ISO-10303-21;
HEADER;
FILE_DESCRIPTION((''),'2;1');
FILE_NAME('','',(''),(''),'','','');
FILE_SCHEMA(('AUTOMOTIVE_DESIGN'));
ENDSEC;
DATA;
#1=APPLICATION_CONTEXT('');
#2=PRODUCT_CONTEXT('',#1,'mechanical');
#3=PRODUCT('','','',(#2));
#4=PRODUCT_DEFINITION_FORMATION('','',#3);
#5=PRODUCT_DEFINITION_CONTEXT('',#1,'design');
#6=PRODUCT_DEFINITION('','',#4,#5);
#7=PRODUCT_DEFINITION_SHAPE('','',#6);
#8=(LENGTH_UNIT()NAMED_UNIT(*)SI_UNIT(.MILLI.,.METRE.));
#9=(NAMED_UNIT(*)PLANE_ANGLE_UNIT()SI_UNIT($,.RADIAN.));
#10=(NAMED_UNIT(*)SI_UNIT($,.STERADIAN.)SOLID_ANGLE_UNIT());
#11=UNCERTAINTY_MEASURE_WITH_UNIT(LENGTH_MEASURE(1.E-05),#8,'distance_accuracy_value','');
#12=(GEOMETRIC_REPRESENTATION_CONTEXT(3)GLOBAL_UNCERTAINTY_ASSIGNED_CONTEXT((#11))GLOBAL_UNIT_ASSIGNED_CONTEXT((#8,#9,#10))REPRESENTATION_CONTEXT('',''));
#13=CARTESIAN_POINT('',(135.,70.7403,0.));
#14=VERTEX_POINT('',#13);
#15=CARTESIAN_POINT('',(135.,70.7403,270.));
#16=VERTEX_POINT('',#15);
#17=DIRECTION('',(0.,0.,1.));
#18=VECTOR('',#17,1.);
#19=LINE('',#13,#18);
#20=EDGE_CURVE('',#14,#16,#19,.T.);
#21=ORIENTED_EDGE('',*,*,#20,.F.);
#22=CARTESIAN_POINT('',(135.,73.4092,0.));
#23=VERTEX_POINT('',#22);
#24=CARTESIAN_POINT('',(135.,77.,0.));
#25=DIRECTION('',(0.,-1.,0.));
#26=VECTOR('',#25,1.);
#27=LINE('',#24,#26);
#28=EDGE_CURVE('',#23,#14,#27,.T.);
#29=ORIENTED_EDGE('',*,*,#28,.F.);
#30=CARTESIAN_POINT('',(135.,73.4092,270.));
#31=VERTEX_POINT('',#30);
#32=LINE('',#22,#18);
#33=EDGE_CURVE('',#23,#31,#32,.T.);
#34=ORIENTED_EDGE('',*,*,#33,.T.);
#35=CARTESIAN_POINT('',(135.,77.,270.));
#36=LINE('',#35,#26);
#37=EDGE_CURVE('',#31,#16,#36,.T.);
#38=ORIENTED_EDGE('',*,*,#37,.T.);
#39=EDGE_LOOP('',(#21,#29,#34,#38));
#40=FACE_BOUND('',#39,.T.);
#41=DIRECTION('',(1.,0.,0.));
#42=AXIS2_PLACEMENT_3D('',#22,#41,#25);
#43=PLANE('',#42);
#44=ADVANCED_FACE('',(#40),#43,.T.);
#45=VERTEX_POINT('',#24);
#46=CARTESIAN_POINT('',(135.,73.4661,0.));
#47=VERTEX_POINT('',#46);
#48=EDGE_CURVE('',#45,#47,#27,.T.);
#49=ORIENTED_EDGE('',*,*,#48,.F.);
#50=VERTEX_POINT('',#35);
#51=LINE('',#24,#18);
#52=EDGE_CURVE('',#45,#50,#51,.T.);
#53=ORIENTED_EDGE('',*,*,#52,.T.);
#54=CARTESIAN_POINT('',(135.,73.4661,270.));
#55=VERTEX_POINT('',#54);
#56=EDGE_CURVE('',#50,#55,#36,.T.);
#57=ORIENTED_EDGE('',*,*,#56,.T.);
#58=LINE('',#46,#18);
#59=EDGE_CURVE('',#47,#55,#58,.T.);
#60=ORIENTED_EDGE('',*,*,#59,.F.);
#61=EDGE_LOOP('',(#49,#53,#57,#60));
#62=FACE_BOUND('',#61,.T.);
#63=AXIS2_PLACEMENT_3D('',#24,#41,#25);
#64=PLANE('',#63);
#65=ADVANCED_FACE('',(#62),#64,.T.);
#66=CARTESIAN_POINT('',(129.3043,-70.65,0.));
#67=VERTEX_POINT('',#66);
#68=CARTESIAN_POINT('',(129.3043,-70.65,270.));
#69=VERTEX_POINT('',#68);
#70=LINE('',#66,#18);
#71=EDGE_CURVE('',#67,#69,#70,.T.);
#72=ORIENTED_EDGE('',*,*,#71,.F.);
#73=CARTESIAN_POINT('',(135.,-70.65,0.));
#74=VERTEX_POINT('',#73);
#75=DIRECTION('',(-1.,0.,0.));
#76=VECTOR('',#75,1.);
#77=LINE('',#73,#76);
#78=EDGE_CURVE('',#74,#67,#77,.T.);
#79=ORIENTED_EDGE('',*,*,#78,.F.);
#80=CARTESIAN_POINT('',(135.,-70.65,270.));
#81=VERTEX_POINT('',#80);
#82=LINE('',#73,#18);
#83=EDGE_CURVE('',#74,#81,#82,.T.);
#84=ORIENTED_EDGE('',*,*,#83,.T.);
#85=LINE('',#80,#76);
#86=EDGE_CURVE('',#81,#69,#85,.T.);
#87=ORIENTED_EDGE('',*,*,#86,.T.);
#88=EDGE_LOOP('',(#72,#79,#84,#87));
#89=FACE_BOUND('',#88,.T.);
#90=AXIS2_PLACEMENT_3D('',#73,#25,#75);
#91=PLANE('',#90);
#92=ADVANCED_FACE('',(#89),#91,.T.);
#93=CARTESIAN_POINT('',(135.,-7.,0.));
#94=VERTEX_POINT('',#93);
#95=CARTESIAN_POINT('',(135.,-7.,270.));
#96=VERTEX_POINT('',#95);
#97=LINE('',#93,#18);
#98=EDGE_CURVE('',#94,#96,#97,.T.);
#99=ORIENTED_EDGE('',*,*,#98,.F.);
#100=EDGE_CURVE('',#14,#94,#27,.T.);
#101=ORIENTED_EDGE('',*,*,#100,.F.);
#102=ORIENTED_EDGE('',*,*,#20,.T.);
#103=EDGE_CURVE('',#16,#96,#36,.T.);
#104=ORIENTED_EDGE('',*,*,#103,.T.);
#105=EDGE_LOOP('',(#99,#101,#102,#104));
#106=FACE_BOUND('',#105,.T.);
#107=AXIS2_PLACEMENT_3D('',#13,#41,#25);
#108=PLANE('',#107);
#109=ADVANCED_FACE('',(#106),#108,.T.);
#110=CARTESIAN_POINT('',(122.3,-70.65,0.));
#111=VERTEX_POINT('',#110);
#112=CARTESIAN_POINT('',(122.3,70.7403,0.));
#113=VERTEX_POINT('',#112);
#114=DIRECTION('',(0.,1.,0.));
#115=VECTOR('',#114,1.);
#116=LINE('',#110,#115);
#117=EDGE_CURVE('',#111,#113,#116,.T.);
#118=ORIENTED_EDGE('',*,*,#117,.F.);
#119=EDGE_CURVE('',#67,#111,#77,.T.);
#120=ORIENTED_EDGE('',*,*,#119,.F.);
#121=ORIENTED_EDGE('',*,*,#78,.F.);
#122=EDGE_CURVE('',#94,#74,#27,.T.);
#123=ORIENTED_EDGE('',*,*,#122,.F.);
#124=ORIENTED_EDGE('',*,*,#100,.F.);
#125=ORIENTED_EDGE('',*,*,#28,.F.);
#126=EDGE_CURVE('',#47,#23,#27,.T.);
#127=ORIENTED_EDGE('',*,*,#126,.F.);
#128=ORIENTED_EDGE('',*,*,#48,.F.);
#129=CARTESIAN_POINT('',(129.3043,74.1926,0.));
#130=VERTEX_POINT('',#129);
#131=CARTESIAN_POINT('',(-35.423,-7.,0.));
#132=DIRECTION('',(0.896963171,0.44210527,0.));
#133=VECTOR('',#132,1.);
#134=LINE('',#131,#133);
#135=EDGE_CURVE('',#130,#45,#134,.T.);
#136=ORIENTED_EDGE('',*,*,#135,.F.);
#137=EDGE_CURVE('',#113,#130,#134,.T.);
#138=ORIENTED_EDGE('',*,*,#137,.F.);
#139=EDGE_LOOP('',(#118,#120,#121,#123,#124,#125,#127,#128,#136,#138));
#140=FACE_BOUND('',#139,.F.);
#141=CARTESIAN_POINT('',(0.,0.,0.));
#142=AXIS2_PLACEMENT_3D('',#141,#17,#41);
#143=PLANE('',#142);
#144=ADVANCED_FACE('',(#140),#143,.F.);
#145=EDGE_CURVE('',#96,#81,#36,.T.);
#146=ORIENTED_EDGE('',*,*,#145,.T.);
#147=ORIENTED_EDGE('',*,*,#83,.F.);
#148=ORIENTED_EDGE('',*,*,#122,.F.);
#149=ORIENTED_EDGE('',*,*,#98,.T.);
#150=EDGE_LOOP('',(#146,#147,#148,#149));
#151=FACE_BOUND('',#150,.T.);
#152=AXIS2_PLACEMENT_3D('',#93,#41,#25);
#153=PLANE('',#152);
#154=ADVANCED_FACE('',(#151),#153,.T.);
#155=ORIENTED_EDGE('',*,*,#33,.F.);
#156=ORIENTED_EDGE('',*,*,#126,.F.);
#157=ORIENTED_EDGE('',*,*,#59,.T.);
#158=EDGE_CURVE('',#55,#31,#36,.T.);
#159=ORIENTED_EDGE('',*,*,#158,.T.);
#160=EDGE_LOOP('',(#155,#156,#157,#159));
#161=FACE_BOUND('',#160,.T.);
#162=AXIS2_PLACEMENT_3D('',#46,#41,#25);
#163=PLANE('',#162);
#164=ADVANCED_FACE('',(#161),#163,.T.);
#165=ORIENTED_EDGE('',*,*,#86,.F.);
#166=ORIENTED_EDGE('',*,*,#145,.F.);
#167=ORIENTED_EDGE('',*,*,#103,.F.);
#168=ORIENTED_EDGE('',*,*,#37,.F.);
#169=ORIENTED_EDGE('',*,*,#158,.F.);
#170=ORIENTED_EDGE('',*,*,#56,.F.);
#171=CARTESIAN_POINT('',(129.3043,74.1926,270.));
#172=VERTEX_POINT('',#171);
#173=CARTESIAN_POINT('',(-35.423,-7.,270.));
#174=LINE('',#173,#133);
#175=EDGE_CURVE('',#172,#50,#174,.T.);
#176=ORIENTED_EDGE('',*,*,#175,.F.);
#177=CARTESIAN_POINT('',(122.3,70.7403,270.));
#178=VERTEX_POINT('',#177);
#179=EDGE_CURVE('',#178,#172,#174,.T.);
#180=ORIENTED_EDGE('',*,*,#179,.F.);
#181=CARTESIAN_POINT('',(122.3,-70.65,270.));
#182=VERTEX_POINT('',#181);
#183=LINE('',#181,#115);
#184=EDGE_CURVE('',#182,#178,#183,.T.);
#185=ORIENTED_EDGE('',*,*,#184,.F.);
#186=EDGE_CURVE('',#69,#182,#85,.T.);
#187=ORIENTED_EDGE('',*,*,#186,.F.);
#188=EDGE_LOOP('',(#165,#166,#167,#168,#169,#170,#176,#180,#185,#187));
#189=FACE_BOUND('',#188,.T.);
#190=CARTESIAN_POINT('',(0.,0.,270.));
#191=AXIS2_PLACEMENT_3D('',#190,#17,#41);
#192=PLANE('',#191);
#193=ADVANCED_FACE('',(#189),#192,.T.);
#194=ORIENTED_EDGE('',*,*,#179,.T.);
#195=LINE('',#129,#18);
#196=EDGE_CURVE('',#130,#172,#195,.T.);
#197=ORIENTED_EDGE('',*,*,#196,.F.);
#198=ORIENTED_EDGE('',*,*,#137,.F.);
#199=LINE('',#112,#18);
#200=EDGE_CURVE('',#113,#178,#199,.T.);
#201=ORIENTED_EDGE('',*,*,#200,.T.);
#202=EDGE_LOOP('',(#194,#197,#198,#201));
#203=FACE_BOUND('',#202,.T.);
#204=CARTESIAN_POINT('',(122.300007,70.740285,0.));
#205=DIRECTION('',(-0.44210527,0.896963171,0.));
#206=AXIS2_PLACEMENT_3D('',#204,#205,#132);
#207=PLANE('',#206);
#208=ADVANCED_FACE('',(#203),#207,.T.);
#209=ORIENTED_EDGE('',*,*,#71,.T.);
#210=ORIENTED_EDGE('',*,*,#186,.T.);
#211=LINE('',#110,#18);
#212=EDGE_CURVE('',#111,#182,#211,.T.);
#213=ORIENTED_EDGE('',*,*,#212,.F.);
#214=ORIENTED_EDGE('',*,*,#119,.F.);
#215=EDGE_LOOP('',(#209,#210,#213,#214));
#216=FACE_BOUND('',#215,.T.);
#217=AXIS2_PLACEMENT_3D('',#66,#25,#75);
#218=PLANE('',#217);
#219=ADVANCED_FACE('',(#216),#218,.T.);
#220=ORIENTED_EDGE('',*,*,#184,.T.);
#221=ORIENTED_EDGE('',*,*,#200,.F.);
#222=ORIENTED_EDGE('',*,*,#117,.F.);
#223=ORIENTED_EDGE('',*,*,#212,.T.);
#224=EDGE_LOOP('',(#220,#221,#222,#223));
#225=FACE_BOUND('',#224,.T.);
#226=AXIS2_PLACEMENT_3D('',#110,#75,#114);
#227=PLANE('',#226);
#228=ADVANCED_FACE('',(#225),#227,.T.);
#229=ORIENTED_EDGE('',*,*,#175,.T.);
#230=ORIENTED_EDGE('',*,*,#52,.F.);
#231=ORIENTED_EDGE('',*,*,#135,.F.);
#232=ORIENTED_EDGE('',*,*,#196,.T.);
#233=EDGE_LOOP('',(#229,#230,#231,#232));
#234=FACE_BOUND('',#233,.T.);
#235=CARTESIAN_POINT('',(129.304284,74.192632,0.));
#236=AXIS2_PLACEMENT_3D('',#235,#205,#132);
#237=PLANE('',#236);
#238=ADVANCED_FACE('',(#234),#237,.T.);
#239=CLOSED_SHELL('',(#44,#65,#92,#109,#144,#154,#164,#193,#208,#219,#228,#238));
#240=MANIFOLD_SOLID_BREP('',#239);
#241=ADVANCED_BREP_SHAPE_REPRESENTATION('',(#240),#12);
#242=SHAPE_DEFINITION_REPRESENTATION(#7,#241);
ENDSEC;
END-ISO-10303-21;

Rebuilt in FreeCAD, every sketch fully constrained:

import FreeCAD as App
import Part
import Sketcher
Q = App.Units.Quantity

doc = App.newDocument("Part")
params = doc.addObject("Spreadsheet::Sheet", "Params")
for row, (alias, value) in enumerate([
    ("sketch1_width", "0.5 in"),
    ("sketch1_height", "5.813 in"),
    ("pad1_length", "270 mm"),
], start=1):
    params.set(f"A{row}", alias)
    params.set(f"B{row}", "=" + value)
    params.setAlias(f"B{row}", alias)

body = doc.addObject("PartDesign::Body", "Body")

# Sketch on XY plane
sketch1 = body.newObject("Sketcher::SketchObject", "Sketch")
sketch1.AttachmentSupport = (doc.getObject("XY_Plane"), [""])
sketch1.MapMode = "FlatFace"
sketch1.addGeometry([
    Part.LineSegment(App.Vector(135, -70.65, 0), App.Vector(135, 77, 0)),
    Part.LineSegment(App.Vector(135, 77, 0), App.Vector(122.3, 70.7403, 0)),
    Part.LineSegment(App.Vector(122.3, 70.7403, 0), App.Vector(122.3, -70.65, 0)),
    Part.LineSegment(App.Vector(122.3, -70.65, 0), App.Vector(135, -70.65, 0)),
], False)
sketch1.addConstraint([
    Sketcher.Constraint("Coincident", 0, 2, 1, 1),
    Sketcher.Constraint("Coincident", 1, 2, 2, 1),
    Sketcher.Constraint("Coincident", 2, 2, 3, 1),
    Sketcher.Constraint("Coincident", 3, 2, 0, 1),
    Sketcher.Constraint("Vertical", 0),
    Sketcher.Constraint("Vertical", 2),
    Sketcher.Constraint("Horizontal", 3),
    Sketcher.Constraint("DistanceX", 3, 1, 3, 2, Q("0.5 in")),
    Sketcher.Constraint("DistanceY", 0, 1, 0, 2, Q("5.813 in")),
    Sketcher.Constraint("DistanceY", 2, 2, 2, 1, Q("141.3903 mm")),
    Sketcher.Constraint("DistanceY", -1, 1, 0, 2, Q("3.0315 in")),
    Sketcher.Constraint("DistanceX", -1, 1, 0, 2, Q("135 mm")),
])
sketch1.setExpression("Constraints[7]", "Params.sketch1_width")
sketch1.setExpression("Constraints[8]", "Params.sketch1_height")
pad1 = body.newObject("PartDesign::Pad", "Pad")
pad1.Profile = sketch1
pad1.setExpression("Length", "Params.pad1_length")

doc.recompute()
